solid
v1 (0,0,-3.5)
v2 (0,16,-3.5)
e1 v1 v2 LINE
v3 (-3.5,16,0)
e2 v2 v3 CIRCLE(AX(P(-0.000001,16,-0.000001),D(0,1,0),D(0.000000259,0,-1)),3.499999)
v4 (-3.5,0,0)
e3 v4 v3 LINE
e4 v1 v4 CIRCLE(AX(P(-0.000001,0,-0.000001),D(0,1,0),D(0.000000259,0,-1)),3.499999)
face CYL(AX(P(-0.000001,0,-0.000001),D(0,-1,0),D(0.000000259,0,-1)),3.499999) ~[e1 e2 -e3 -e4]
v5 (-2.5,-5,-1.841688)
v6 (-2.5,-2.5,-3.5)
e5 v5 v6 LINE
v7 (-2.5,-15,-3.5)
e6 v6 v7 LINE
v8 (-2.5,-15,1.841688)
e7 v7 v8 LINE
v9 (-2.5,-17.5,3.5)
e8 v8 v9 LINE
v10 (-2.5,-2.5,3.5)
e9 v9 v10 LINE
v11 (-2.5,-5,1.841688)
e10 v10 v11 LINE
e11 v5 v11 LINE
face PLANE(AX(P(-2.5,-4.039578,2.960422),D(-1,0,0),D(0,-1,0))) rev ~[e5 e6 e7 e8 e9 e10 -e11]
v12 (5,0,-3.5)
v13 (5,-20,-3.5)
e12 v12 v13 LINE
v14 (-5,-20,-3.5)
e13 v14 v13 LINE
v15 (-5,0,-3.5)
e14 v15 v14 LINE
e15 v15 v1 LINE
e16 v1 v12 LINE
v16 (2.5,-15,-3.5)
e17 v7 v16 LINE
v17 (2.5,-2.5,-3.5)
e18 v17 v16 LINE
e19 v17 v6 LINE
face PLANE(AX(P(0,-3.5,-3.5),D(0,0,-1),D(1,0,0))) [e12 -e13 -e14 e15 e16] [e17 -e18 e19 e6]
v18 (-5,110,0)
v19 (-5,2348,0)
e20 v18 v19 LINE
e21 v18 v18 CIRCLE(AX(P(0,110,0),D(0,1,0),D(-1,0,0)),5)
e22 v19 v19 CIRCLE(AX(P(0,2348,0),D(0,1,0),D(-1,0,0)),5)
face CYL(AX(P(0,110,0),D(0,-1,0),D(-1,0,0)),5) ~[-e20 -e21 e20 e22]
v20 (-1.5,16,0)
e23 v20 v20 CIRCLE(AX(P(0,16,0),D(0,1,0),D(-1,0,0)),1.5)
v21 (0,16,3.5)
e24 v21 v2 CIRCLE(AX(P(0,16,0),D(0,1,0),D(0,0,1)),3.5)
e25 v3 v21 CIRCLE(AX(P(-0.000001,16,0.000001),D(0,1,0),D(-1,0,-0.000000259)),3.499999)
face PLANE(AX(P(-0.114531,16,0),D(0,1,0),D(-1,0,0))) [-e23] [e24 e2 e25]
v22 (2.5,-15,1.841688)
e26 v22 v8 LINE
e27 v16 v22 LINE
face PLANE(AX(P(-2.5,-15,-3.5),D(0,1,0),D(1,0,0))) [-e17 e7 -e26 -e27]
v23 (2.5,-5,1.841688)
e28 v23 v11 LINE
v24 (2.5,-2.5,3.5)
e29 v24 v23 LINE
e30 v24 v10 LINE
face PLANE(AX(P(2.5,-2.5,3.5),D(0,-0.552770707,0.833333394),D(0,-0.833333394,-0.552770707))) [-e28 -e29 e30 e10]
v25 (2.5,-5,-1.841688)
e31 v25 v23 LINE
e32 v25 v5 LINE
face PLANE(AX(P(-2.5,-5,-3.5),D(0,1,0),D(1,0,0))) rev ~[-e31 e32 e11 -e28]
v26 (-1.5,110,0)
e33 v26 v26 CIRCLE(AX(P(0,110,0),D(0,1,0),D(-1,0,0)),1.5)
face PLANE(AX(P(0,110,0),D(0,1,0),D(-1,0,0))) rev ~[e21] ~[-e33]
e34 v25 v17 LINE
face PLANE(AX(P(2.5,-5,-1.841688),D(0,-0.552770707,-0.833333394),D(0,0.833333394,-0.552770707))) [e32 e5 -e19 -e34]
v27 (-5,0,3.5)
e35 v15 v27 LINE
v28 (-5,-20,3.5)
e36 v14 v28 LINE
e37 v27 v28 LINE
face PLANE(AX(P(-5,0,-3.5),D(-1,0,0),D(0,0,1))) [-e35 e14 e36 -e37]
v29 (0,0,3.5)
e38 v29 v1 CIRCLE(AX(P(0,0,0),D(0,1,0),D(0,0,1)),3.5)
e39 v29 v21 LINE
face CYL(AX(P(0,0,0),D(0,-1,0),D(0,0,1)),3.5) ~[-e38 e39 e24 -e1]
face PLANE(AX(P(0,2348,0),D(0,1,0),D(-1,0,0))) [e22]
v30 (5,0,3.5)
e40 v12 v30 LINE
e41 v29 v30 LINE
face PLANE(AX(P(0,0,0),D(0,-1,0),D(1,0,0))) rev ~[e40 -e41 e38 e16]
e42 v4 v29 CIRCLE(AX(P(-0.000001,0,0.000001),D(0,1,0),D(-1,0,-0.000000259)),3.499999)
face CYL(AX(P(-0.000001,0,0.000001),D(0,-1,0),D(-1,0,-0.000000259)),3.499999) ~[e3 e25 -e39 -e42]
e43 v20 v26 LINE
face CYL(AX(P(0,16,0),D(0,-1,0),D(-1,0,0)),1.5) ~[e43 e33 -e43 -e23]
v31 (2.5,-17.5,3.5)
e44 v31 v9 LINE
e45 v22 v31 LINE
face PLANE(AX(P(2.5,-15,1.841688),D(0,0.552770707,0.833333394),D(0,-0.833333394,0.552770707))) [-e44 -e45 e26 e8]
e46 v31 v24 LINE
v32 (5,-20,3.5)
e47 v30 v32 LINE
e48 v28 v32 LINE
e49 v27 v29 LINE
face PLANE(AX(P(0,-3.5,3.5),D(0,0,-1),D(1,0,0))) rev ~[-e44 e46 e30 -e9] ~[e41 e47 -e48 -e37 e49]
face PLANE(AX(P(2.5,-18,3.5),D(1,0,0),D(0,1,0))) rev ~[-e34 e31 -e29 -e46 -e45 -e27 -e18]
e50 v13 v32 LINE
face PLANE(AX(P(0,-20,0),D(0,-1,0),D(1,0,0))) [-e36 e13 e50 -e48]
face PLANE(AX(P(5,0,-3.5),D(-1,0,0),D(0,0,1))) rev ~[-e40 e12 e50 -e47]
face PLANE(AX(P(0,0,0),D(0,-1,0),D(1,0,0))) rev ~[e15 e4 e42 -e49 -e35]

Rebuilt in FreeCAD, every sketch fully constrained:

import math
import FreeCAD as App
import Part
import Sketcher


def add_polygon(sketch, points):
    """Adds a closed chain of lines whose ends are joined by coincident constraints."""
    first, n = sketch.GeometryCount, len(points)
    for a, b in zip(points, points[1:] + points[:1]):
        sketch.addGeometry(Part.LineSegment(App.Vector(*a, 0), App.Vector(*b, 0)), False)
    for i in range(n):
        sketch.addConstraint(Sketcher.Constraint("Coincident", first + i, 2, first + (i + 1) % n, 1))

doc = App.newDocument("Part")
params = doc.addObject("Spreadsheet::Sheet", "Params")
for row, (alias, value) in enumerate([
    ("sketch1_width", "10 mm"),
    ("sketch1_height", "7 mm"),
    ("pad1_length", "20 mm"),
    ("sketch2_width", "5 mm"),
    ("sketch2_height", "16 mm"),
    ("sketch3_width", "5 mm"),
    ("sketch3_height", "3 mm"),
    ("pad2_length", "7 mm"),
    ("sketch4_length", "3 mm"),
    ("sketch4_width", "2.5 mm"),
    ("pocket2_length", "5 mm"),
    ("sketch5_radius", "3.499999 mm"),
    ("pad3_length", "16 mm"),
    ("sketch6_diameter", "3 mm"),
    ("pad4_length", "94 mm"),
    ("sketch7_diameter", "10 mm"),
    ("pad5_length", "2238 mm"),
], start=1):
    params.set(f"A{row}", alias)
    params.set(f"B{row}", "=" + value)
    params.setAlias(f"B{row}", alias)

body = doc.addObject("PartDesign::Body", "Body")

# Sketch on XZ plane
sketch1 = doc.addObject("Sketcher::SketchObject", "Sketch")
body.addObject(sketch1)
sketch1.AttachmentSupport = (doc.XZ_Plane, [""])
sketch1.MapMode = "FlatFace"
add_polygon(sketch1, [(-5, 4), (-5, -4), (5, -4), (5, 4)])  # lines 0-3
sketch1.addConstraint(Sketcher.Constraint("Vertical", 0))
sketch1.addConstraint(Sketcher.Constraint("Horizontal", 1))
sketch1.addConstraint(Sketcher.Constraint("Vertical", 2))
sketch1.addConstraint(Sketcher.Constraint("Horizontal", 3))
sketch1.addConstraint(Sketcher.Constraint("Symmetric", 0, 2, 2, 2, -1, 1))
sketch1.addConstraint(Sketcher.Constraint("DistanceX", 1, 1, 1, 2, 10.0))
sketch1.addConstraint(Sketcher.Constraint("DistanceY", 0, 2, 0, 1, 7.0))
sketch1.setExpression("Constraints[9]", "Params.sketch1_width")
sketch1.setExpression("Constraints[10]", "Params.sketch1_height")
pad1 = doc.addObject("PartDesign::Pad", "Pad")
body.addObject(pad1)
pad1.Profile = sketch1
pad1.setExpression("Length", "Params.pad1_length")

# Sketch on XY plane
sketch2 = doc.addObject("Sketcher::SketchObject", "Sketch001")
body.addObject(sketch2)
sketch2.AttachmentSupport = (doc.XY_Plane, [""])
sketch2.MapMode = "FlatFace"
sketch2.AttachmentOffset = App.Placement(App.Vector(0, 0, 3.5), App.Rotation())
add_polygon(sketch2, [(-2, -2), (-2, -18), (2, -18), (2, -2)])  # lines 0-3
sketch2.addConstraint(Sketcher.Constraint("Vertical", 0))
sketch2.addConstraint(Sketcher.Constraint("Horizontal", 1))
sketch2.addConstraint(Sketcher.Constraint("Vertical", 2))
sketch2.addConstraint(Sketcher.Constraint("Horizontal", 3))
sketch2.addConstraint(Sketcher.Constraint("DistanceX", 1, 1, 1, 2, 5.0))
sketch2.addConstraint(Sketcher.Constraint("DistanceY", 0, 2, 0, 1, 16.0))
sketch2.addConstraint(Sketcher.Constraint("DistanceY", 0, 2, -1, 1, 18.0))
sketch2.addConstraint(Sketcher.Constraint("DistanceX", 0, 2, -1, 1, 2.5))
sketch2.setExpression("Constraints[8]", "Params.sketch2_width")
sketch2.setExpression("Constraints[9]", "Params.sketch2_height")
pocket1 = doc.addObject("PartDesign::Pocket", "Pocket")
body.addObject(pocket1)
pocket1.Profile = sketch2
pocket1.Type = "ThroughAll"

# Sketch on XY plane
sketch3 = doc.addObject("Sketcher::SketchObject", "Sketch002")
body.addObject(sketch3)
sketch3.AttachmentSupport = (doc.XY_Plane, [""])
sketch3.MapMode = "FlatFace"
sketch3.AttachmentOffset = App.Placement(App.Vector(0, 0, -3.5), App.Rotation())
add_polygon(sketch3, [(-2.5, -5), (-2.5, -2), (2.5, -2), (2.5, -5)])  # lines 0-3
add_polygon(sketch3, [(-2.5, -18), (-2.5, -15), (2.5, -15), (2.5, -18)])  # lines 4-7
sketch3.addConstraint(Sketcher.Constraint("Vertical", 0))
sketch3.addConstraint(Sketcher.Constraint("Horizontal", 1))
sketch3.addConstraint(Sketcher.Constraint("Vertical", 2))
sketch3.addConstraint(Sketcher.Constraint("Horizontal", 3))
sketch3.addConstraint(Sketcher.Constraint("Vertical", 4))
sketch3.addConstraint(Sketcher.Constraint("Horizontal", 5))
sketch3.addConstraint(Sketcher.Constraint("Vertical", 6))
sketch3.addConstraint(Sketcher.Constraint("Horizontal", 7))
sketch3.addConstraint(Sketcher.Constraint("Vertical", 3, 2, 4, 2))
sketch3.addConstraint(Sketcher.Constraint("Vertical", 2, 2, 5, 2))
sketch3.addConstraint(Sketcher.Constraint("Equal", 2, 4))
sketch3.addConstraint(Sketcher.Constraint("DistanceX", 1, 1, 1, 2, 5.0))
sketch3.addConstraint(Sketcher.Constraint("DistanceY", 0, 1, 0, 2, 3.0))
sketch3.addConstraint(Sketcher.Constraint("DistanceY", 0, 2, -1, 1, 2.0))
sketch3.addConstraint(Sketcher.Constraint("DistanceY", 4, 2, -1, 1, 15.0))
sketch3.addConstraint(Sketcher.Constraint("DistanceX", 0, 2, -1, 1, 2.5))
sketch3.setExpression("Constraints[19]", "Params.sketch3_width")
sketch3.setExpression("Constraints[20]", "Params.sketch3_height")
pad2 = doc.addObject("PartDesign::Pad", "Pad001")
body.addObject(pad2)
pad2.Profile = sketch3
pad2.setExpression("Length", "Params.pad2_length")

# Sketch on YZ plane
sketch4 = doc.addObject("Sketcher::SketchObject", "Sketch003")
body.addObject(sketch4)
sketch4.AttachmentSupport = (doc.YZ_Plane, [""])
sketch4.MapMode = "FlatFace"
sketch4.AttachmentOffset = App.Placement(App.Vector(0, 0, 2.5), App.Rotation())
add_polygon(sketch4, [(-2.5, 3.5), (-5, 1.8), (-5, 3.5)])  # lines 0-2
add_polygon(sketch4, [(-2.5, -3.5), (-5, -3.5), (-5, -1.8)])  # lines 3-5
add_polygon(sketch4, [(-17.5, 3.5), (-15, 3.5), (-15, 1.8)])  # lines 6-8
sketch4.addConstraint(Sketcher.Constraint("Vertical", 1))
sketch4.addConstraint(Sketcher.Constraint("Horizontal", 2))
sketch4.addConstraint(Sketcher.Constraint("Horizontal", 3))
sketch4.addConstraint(Sketcher.Constraint("Vertical", 4))
sketch4.addConstraint(Sketcher.Constraint("Horizontal", 6))
sketch4.addConstraint(Sketcher.Constraint("Vertical", 7))
sketch4.addConstraint(Sketcher.Constraint("Symmetric", 1, 2, 3, 2, -1))
sketch4.addConstraint(Sketcher.Constraint("Parallel", 5, 8))
sketch4.addConstraint(Sketcher.Constraint("Horizontal", 2, 2, 6, 2))
sketch4.addConstraint(Sketcher.Constraint("Horizontal", 0, 2, 7, 2))
sketch4.addConstraint(Sketcher.Constraint("Vertical", 2, 2, 5, 2))
sketch4.addConstraint(Sketcher.Constraint("Equal", 3, 6))
sketch4.addConstraint(Sketcher.Constraint("Distance", 0, 3.0))
sketch4.addConstraint(Sketcher.Constraint("DistanceX", 2, 1, 2, 2, 2.5))
sketch4.addConstraint(Sketcher.Constraint("DistanceX", 0, 2, -1, 1, 5.0))
sketch4.addConstraint(Sketcher.Constraint("DistanceX", 6, 2, -1, 1, 15.0))
sketch4.addConstraint(Sketcher.Constraint("DistanceY", 3, 2, 1, 2, 7.0))
sketch4.setExpression("Constraints[21]", "Params.sketch4_length")
sketch4.setExpression("Constraints[22]", "Params.sketch4_width")
pocket2 = doc.addObject("PartDesign::Pocket", "Pocket001")
body.addObject(pocket2)
pocket2.Profile = sketch4
pocket2.setExpression("Length", "Params.pocket2_length")

# Sketch on XZ plane
sketch5 = doc.addObject("Sketcher::SketchObject", "Sketch004")
body.addObject(sketch5)
sketch5.AttachmentSupport = (doc.XZ_Plane, [""])
sketch5.MapMode = "FlatFace"
sketch5.addGeometry(Part.ArcOfCircle(Part.Circle(App.Vector(0, 0, 0), App.Vector(0, 0, 1), 3.5), math.radians(180), math.radians(270)), False)
sketch5.addGeometry(Part.ArcOfCircle(Part.Circle(App.Vector(0, 0, 0), App.Vector(0, 0, 1), 3.5), math.radians(90), math.radians(180)), False)
sketch5.addGeometry(Part.ArcOfCircle(Part.Circle(App.Vector(0, 0, 0), App.Vector(0, 0, 1), 3.5), math.radians(-90), math.radians(90)), False)
sketch5.addConstraint(Sketcher.Constraint("Tangent", 0, 1, 1, 2))
sketch5.addConstraint(Sketcher.Constraint("Tangent", 1, 1, 2, 2))
sketch5.addConstraint(Sketcher.Constraint("Tangent", 2, 1, 0, 2))
sketch5.addConstraint(Sketcher.Constraint("Coincident", 0, 3, -1, 1))
sketch5.addConstraint(Sketcher.Constraint("PointOnObject", 0, 1, -1))
sketch5.addConstraint(Sketcher.Constraint("PointOnObject", 1, 1, -2))
sketch5.addConstraint(Sketcher.Constraint("PointOnObject", 2, 1, -2))
sketch5.addConstraint(Sketcher.Constraint("Radius", 0, 3.499999))
sketch5.setExpression("Constraints[7]", "Params.sketch5_radius")
pad3 = doc.addObject("PartDesign::Pad", "Pad002")
body.addObject(pad3)
pad3.Profile = sketch5
pad3.setExpression("Length", "Params.pad3_length")
pad3.Reversed = True

# Sketch on XZ plane
sketch6 = doc.addObject("Sketcher::SketchObject", "Sketch005")
body.addObject(sketch6)
sketch6.AttachmentSupport = (doc.XZ_Plane, [""])
sketch6.MapMode = "FlatFace"
sketch6.AttachmentOffset = App.Placement(App.Vector(0, 0, -16), App.Rotation())
sketch6.addGeometry(Part.Circle(App.Vector(0, 0, 0), App.Vector(0, 0, 1), 1.5), False)
sketch6.addConstraint(Sketcher.Constraint("Coincident", 0, 3, -1, 1))
sketch6.addConstraint(Sketcher.Constraint("Diameter", 0, 3.0))
sketch6.setExpression("Constraints[1]", "Params.sketch6_diameter")
pad4 = doc.addObject("PartDesign::Pad", "Pad003")
body.addObject(pad4)
pad4.Profile = sketch6
pad4.setExpression("Length", "Params.pad4_length")
pad4.Reversed = True

# Sketch on XZ plane
sketch7 = doc.addObject("Sketcher::SketchObject", "Sketch006")
body.addObject(sketch7)
sketch7.AttachmentSupport = (doc.XZ_Plane, [""])
sketch7.MapMode = "FlatFace"
sketch7.AttachmentOffset = App.Placement(App.Vector(0, 0, -110), App.Rotation())
sketch7.addGeometry(Part.Circle(App.Vector(0, 0, 0), App.Vector(0, 0, 1), 5), False)
sketch7.addConstraint(Sketcher.Constraint("Coincident", 0, 3, -1, 1))
sketch7.addConstraint(Sketcher.Constraint("Diameter", 0, 10.0))
sketch7.setExpression("Constraints[1]", "Params.sketch7_diameter")
pad5 = doc.addObject("PartDesign::Pad", "Pad004")
body.addObject(pad5)
pad5.Profile = sketch7
pad5.setExpression("Length", "Params.pad5_length")
pad5.Reversed = True

doc.recompute()
